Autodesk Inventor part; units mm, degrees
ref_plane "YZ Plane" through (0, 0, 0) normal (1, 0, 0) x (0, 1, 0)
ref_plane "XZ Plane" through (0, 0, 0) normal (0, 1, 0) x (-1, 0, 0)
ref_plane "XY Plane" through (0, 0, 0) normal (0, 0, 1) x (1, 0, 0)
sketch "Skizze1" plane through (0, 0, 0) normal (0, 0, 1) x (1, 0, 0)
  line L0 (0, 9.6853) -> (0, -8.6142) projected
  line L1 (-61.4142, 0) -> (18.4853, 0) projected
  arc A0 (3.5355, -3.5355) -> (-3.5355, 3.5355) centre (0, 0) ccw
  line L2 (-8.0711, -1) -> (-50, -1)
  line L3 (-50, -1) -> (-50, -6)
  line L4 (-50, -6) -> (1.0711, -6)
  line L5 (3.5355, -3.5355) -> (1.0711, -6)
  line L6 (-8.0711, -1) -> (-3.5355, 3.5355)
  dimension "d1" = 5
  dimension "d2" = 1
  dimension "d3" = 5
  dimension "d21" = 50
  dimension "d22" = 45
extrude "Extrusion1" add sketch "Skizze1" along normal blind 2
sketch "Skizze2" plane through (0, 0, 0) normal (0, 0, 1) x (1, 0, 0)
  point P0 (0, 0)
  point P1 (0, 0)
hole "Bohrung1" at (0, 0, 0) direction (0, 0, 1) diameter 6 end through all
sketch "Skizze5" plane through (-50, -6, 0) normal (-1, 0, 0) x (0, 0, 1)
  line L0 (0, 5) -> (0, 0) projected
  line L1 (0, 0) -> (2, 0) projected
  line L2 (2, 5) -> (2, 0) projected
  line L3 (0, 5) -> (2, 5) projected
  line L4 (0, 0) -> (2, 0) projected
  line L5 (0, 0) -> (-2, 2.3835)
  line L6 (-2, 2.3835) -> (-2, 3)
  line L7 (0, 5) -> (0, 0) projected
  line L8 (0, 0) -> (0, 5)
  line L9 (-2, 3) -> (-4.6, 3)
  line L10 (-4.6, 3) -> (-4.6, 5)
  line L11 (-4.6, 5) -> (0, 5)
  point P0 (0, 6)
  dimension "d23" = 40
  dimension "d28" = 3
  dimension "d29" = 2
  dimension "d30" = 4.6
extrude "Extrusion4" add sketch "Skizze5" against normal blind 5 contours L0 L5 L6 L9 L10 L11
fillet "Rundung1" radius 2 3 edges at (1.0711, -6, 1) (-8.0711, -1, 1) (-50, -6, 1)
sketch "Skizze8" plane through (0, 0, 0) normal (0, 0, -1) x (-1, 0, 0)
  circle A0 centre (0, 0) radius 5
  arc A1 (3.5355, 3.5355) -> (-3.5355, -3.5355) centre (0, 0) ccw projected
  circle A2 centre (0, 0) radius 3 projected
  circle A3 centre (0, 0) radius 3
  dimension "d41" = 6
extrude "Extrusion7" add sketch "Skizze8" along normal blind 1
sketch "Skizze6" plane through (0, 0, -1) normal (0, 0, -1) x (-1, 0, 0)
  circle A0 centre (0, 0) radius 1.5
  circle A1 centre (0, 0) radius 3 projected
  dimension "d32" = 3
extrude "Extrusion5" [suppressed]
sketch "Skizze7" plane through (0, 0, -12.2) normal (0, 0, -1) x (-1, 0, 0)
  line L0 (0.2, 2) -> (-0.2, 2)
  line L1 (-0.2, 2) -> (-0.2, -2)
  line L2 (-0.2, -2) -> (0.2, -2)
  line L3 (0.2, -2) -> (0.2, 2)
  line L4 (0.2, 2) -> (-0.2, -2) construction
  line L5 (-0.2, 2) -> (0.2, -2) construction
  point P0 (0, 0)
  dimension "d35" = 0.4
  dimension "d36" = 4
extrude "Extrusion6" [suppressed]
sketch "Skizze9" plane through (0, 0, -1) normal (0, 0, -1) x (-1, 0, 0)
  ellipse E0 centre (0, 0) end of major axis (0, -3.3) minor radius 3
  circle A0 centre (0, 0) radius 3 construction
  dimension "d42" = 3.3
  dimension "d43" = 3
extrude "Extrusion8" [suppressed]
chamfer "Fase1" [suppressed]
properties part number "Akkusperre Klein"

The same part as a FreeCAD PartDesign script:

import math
import FreeCAD as App
import Part
import Sketcher

V = App.Vector
Q = App.Units.Quantity


def edges_at(feature, points):
    """Names of the edges that pass closest to the given points."""
    edges = feature.Shape.Edges
    near = lambda p: min(range(len(edges)), key=lambda i: edges[i].distToShape(Part.Vertex(*p))[0])
    return sorted({f"Edge{near(p) + 1}" for p in points})

doc = App.newDocument("Part")
body = doc.addObject("PartDesign::Body", "Body")

sketch1 = body.newObject("Sketcher::SketchObject", "Sketch")
sketch1.AttachmentSupport = (doc.getObject("XY_Plane"), [""])
sketch1.MapMode = "FlatFace"
sketch1.addGeometry([
    Part.LineSegment(V(-3.5, 3.5, 0), V(-8.1, -1, 0)),
    Part.LineSegment(V(-8.1, -1, 0), V(-50, -1, 0)),
    Part.LineSegment(V(-50, -1, 0), V(-50, -6, 0)),
    Part.LineSegment(V(-50, -6, 0), V(1.1, -6, 0)),
    Part.LineSegment(V(1.1, -6, 0), V(3.5, -3.5, 0)),
    Part.ArcOfCircle(Part.Circle(V(0, 0, 0), V(0, 0, 1), 5), math.radians(-45), math.radians(135)),
], False)
sketch1.addConstraint([
    Sketcher.Constraint("Coincident", 0, 2, 1, 1),
    Sketcher.Constraint("Coincident", 1, 2, 2, 1),
    Sketcher.Constraint("Coincident", 2, 2, 3, 1),
    Sketcher.Constraint("Coincident", 3, 2, 4, 1),
    Sketcher.Constraint("Tangent", 4, 2, 5, 1),
    Sketcher.Constraint("Tangent", 5, 2, 0, 1),
    Sketcher.Constraint("Horizontal", 1),
    Sketcher.Constraint("Vertical", 2),
    Sketcher.Constraint("Horizontal", 3),
    Sketcher.Constraint("Coincident", 5, 3, -1, 1),
    Sketcher.Constraint("Parallel", 0, 4),
    Sketcher.Constraint("Radius", 5, Q("5 mm")),
    Sketcher.Constraint("DistanceY", 2, 2, 2, 1, Q("5 mm")),
    Sketcher.Constraint("DistanceY", 0, 2, -1, 1, Q("1 mm")),
    Sketcher.Constraint("DistanceX", 1, 2, -1, 1, Q("50 mm")),
    Sketcher.Constraint("Angle", 0, Q("-135.0006 deg")),
])
pad1 = body.newObject("PartDesign::Pad", "Pad")
pad1.Profile = sketch1
pad1.Length = 2

sketch2 = body.newObject("Sketcher::SketchObject", "Sketch001")
sketch2.AttachmentSupport = (doc.getObject("XY_Plane"), [""])
sketch2.MapMode = "FlatFace"
sketch2.addGeometry(Part.Circle(V(0, 0, 0), V(0, 0, 1), 3), False)
sketch2.addConstraint([
    Sketcher.Constraint("Coincident", 0, 3, -1, 1),
    Sketcher.Constraint("Diameter", 0, Q("6 mm")),
])
doc.recompute()
hole = body.newObject("PartDesign::Hole", "Hole")
hole.Profile = sketch2
hole.ThreadType = "None"
hole.Diameter = 6
hole.DepthType = "ThroughAll"
hole.Reversed = True

sketch3 = body.newObject("Sketcher::SketchObject", "Sketch002")
sketch3.AttachmentSupport = (doc.getObject("YZ_Plane"), [""])
sketch3.MapMode = "FlatFace"
sketch3.AttachmentOffset = App.Placement(V(0, 0, -50), App.Rotation())
sketch3.addGeometry([
    Part.LineSegment(V(-6, 0, 0), V(-1, 0, 0)),
    Part.LineSegment(V(-1, 0, 0), V(-1, -4.6, 0)),
    Part.LineSegment(V(-1, -4.6, 0), V(-3, -4.6, 0)),
    Part.LineSegment(V(-3, -4.6, 0), V(-3, -2, 0)),
    Part.LineSegment(V(-3, -2, 0), V(-3.6, -2, 0)),
    Part.LineSegment(V(-3.6, -2, 0), V(-6, 0, 0)),
], False)
sketch3.addConstraint([
    Sketcher.Constraint("Coincident", 0, 2, 1, 1),
    Sketcher.Constraint("Coincident", 1, 2, 2, 1),
    Sketcher.Constraint("Coincident", 2, 2, 3, 1),
    Sketcher.Constraint("Coincident", 3, 2, 4, 1),
    Sketcher.Constraint("Coincident", 4, 2, 5, 1),
    Sketcher.Constraint("Coincident", 5, 2, 0, 1),
    Sketcher.Constraint("Horizontal", 0),
    Sketcher.Constraint("Vertical", 1),
    Sketcher.Constraint("Horizontal", 2),
    Sketcher.Constraint("Vertical", 3),
    Sketcher.Constraint("Horizontal", 4),
    Sketcher.Constraint("PointOnObject", 0, 2, -1),
    Sketcher.Constraint("DistanceX", 2, 2, 2, 1, Q("2 mm")),
    Sketcher.Constraint("DistanceY", 1, 2, 1, 1, Q("4.6 mm")),
    Sketcher.Constraint("DistanceX", 2, 2, -1, 1, Q("3 mm")),
    Sketcher.Constraint("DistanceY", 3, 2, -1, 1, Q("2 mm")),
    Sketcher.Constraint("DistanceX", 5, 2, 3, 2, Q("3 mm")),
    Sketcher.Constraint("Angle", 5, Q("140 deg")),
])
pad2 = body.newObject("PartDesign::Pad", "Pad001")
pad2.Profile = sketch3
pad2.Length = 5
doc.recompute()

fillet = body.newObject("PartDesign::Fillet", "Fillet")
fillet.Base = (pad2, edges_at(pad2, [(1.071, -6, 1), (-8.071, -1, 1), (-50, -6, 1)]))
fillet.Radius = 2

sketch4 = body.newObject("Sketcher::SketchObject", "Sketch003")
sketch4.AttachmentSupport = (doc.getObject("XY_Plane"), [""])
sketch4.MapMode = "FlatFace"
sketch4.addGeometry([
    Part.Circle(V(0, 0, 0), V(0, 0, 1), 5),
    Part.Circle(V(0, 0, 0), V(0, 0, 1), 3),
], False)
sketch4.addConstraint([
    Sketcher.Constraint("Coincident", 0, 3, -1, 1),
    Sketcher.Constraint("Coincident", 1, 3, -1, 1),
    Sketcher.Constraint("Diameter", 1, Q("6 mm")),
    Sketcher.Constraint("Diameter", 0, Q("10 mm")),
])
pad3 = body.newObject("PartDesign::Pad", "Pad002")
pad3.Profile = sketch4
pad3.Length = 1
pad3.Reversed = True

doc.recompute()
